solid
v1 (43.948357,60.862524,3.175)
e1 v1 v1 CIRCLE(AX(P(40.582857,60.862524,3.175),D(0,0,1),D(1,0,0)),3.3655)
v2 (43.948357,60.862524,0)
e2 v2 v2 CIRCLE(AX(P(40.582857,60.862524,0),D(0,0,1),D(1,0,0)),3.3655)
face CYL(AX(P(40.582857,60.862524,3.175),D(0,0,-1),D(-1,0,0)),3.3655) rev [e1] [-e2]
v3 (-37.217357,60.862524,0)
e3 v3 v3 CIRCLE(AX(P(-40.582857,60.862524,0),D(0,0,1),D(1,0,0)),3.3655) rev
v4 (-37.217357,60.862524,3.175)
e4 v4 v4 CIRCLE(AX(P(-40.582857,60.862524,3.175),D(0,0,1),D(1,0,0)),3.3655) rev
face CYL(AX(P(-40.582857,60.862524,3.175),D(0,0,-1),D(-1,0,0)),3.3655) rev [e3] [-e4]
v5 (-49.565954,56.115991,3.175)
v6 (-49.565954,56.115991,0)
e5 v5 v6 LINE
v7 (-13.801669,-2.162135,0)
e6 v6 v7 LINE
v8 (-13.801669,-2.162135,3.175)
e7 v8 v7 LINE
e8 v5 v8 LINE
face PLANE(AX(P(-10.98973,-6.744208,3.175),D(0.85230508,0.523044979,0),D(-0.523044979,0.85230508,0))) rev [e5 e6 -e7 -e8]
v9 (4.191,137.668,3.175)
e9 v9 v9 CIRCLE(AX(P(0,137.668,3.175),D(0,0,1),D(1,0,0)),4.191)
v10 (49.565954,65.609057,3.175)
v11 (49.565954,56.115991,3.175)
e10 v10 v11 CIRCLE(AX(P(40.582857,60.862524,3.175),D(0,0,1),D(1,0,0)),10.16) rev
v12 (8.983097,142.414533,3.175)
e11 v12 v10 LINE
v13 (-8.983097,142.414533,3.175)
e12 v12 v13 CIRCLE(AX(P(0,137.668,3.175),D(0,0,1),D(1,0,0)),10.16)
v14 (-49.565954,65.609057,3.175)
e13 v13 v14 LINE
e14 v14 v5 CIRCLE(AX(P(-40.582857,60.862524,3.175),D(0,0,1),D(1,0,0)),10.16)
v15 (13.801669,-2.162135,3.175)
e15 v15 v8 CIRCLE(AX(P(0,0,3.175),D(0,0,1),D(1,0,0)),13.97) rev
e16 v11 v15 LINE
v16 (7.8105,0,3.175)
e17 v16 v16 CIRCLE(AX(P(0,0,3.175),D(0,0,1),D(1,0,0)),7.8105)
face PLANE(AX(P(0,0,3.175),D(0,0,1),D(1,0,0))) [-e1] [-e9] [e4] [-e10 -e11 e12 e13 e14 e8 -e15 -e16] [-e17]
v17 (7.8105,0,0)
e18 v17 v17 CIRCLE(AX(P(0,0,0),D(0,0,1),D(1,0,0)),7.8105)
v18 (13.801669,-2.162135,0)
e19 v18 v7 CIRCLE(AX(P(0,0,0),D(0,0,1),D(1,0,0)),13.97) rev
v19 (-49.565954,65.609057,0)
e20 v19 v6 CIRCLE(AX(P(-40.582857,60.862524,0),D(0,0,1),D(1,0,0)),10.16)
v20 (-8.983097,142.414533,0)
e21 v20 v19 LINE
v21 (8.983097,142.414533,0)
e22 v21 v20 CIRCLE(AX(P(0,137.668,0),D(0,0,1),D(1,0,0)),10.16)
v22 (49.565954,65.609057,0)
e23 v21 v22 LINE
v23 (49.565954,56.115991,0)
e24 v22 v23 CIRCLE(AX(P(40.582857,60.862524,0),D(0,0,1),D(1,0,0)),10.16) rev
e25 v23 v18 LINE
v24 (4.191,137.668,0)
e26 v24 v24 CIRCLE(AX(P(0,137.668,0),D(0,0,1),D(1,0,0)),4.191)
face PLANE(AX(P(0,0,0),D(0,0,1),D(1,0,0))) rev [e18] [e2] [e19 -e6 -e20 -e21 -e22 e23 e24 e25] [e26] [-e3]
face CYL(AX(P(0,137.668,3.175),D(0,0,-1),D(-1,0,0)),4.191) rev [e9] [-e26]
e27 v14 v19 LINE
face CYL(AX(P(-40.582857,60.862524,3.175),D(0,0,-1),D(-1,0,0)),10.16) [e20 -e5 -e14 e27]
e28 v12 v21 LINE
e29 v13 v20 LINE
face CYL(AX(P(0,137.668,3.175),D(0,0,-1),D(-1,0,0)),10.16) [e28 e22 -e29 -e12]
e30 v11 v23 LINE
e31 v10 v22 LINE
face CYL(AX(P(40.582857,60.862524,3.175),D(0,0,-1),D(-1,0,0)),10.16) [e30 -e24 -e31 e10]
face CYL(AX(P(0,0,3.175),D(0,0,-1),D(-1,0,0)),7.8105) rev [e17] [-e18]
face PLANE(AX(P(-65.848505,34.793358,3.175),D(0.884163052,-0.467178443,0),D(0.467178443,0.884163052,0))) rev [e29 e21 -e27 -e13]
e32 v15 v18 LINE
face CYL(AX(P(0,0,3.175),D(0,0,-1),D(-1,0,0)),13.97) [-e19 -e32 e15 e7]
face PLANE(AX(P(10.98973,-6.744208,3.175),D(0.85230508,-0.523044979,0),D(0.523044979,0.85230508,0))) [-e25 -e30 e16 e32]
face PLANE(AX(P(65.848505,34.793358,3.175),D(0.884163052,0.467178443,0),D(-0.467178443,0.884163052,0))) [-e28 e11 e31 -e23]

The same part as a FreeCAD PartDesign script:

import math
import FreeCAD as App
import Part
import Sketcher
from FreeCAD import Vector
Q = App.Units.Quantity

doc = App.newDocument("Part")
params = doc.addObject("Spreadsheet::Sheet", "Params")
for row, (alias, value) in enumerate([
    ("sketch1_radius", "0.4 in"),
    ("sketch1_diameter", "0.33 in"),
    ("sketch1_radius2", "0.55 in"),
    ("sketch1_diameter2", "0.265 in"),
    ("sketch1_diameter3", "0.615 in"),
    ("pad1_length", "0.125 in"),
], start=1):
    params.set(f"A{row}", alias)
    params.set(f"B{row}", "=" + value)
    params.setAlias(f"B{row}", alias)

body = doc.addObject("PartDesign::Body", "Body")

sketch1 = body.newObject("Sketcher::SketchObject", "Sketch")
sketch1.AttachmentSupport = (doc.getObject("XY_Plane"), [""])
sketch1.MapMode = "FlatFace"
sketch1.addGeometry(Part.LineSegment(Vector(-49.6, 56.1, 0), Vector(-13.8, -2.2, 0)), False)
sketch1.addGeometry(Part.ArcOfCircle(Part.Circle(Vector(0, 0, 0), Vector(0, 0, 1), 14), math.radians(-171), math.radians(-126)), False)
sketch1.addGeometry(Part.ArcOfCircle(Part.Circle(Vector(0, 0, 0), Vector(0, 0, 1), 14), math.radians(-126), math.radians(-54)), False)
sketch1.addGeometry(Part.ArcOfCircle(Part.Circle(Vector(0, 0, 0), Vector(0, 0, 1), 14), math.radians(-54), math.radians(-9)), False)
sketch1.addGeometry(Part.LineSegment(Vector(13.8, -2.2, 0), Vector(49.6, 56.1, 0)), False)
sketch1.addGeometry(Part.ArcOfCircle(Part.Circle(Vector(40.6, 60.9, 0), Vector(0, 0, 1), 10.2), math.radians(-28), math.radians(28)), False)
sketch1.addGeometry(Part.LineSegment(Vector(49.6, 65.6, 0), Vector(9, 142.4, 0)), False)
sketch1.addGeometry(Part.ArcOfCircle(Part.Circle(Vector(0, 137.7, 0), Vector(0, 0, 1), 10.2), math.radians(28), math.radians(152)), False)
sketch1.addGeometry(Part.LineSegment(Vector(-9, 142.4, 0), Vector(-49.6, 65.6, 0)), False)
sketch1.addGeometry(Part.ArcOfCircle(Part.Circle(Vector(-40.6, 60.9, 0), Vector(0, 0, 1), 10.2), math.radians(152), math.radians(208)), False)
sketch1.addGeometry(Part.Circle(Vector(-40.6, 60.9, 0), Vector(0, 0, 1), 3.4), False)
sketch1.addGeometry(Part.Circle(Vector(0, 137.7, 0), Vector(0, 0, 1), 4.2), False)
sketch1.addGeometry(Part.Circle(Vector(0, 0, 0), Vector(0, 0, 1), 7.8), False)
sketch1.addGeometry(Part.Circle(Vector(40.6, 60.9, 0), Vector(0, 0, 1), 3.4), False)
sketch1.addConstraint(Sketcher.Constraint("Coincident", 0, 2, 1, 1))
sketch1.addConstraint(Sketcher.Constraint("Tangent", 1, 2, 2, 1))
sketch1.addConstraint(Sketcher.Constraint("Tangent", 2, 2, 3, 1))
sketch1.addConstraint(Sketcher.Constraint("Coincident", 3, 2, 4, 1))
sketch1.addConstraint(Sketcher.Constraint("Coincident", 4, 2, 5, 1))
sketch1.addConstraint(Sketcher.Constraint("Tangent", 5, 2, 6, 1))
sketch1.addConstraint(Sketcher.Constraint("Tangent", 6, 2, 7, 1))
sketch1.addConstraint(Sketcher.Constraint("Tangent", 7, 2, 8, 1))
sketch1.addConstraint(Sketcher.Constraint("Tangent", 8, 2, 9, 1))
sketch1.addConstraint(Sketcher.Constraint("Coincident", 9, 2, 0, 1))
sketch1.addConstraint(Sketcher.Constraint("Coincident", 1, 3, -1, 1))
sketch1.addConstraint(Sketcher.Constraint("Coincident", 3, 3, -1, 1))
sketch1.addConstraint(Sketcher.Constraint("Coincident", 12, 3, -1, 1))
sketch1.addConstraint(Sketcher.Constraint("Coincident", 10, 3, 9, 3))
sketch1.addConstraint(Sketcher.Constraint("Coincident", 11, 3, 7, 3))
sketch1.addConstraint(Sketcher.Constraint("Coincident", 13, 3, 5, 3))
sketch1.addConstraint(Sketcher.Constraint("Equal", 5, 7))
sketch1.addConstraint(Sketcher.Constraint("Equal", 7, 9))
sketch1.addConstraint(Sketcher.Constraint("Equal", 10, 13))
sketch1.addConstraint(Sketcher.Constraint("Symmetric", 5, 3, 9, 3, -2))
sketch1.addConstraint(Sketcher.Constraint("PointOnObject", 7, 3, -2))
sketch1.addConstraint(Sketcher.Constraint("Horizontal", 1, 2, 2, 2))
sketch1.addConstraint(Sketcher.Constraint("Horizontal", 0, 2, 3, 2))
sketch1.addConstraint(Sketcher.Constraint("Horizontal", 4, 2, 9, 2))
sketch1.addConstraint(Sketcher.Constraint("Vertical", 4, 2, 5, 2))
sketch1.addConstraint(Sketcher.Constraint("Radius", 5, Q("0.4 in")))
sketch1.addConstraint(Sketcher.Constraint("Diameter", 11, Q("0.33 in")))
sketch1.addConstraint(Sketcher.Constraint("Radius", 1, Q("0.55 in")))
sketch1.addConstraint(Sketcher.Constraint("Diameter", 10, Q("0.265 in")))
sketch1.addConstraint(Sketcher.Constraint("Diameter", 12, Q("0.615 in")))
sketch1.addConstraint(Sketcher.Constraint("Distance", 6, Q("3.42 in")))
sketch1.addConstraint(Sketcher.Constraint("DistanceY", -1, 1, 7, 3, Q("5.42 in")))
sketch1.addConstraint(Sketcher.Constraint("DistanceX", 0, 2, -1, 1, 13.801669))
sketch1.addConstraint(Sketcher.Constraint("DistanceX", 1, 2, -1, 1, 8.17779))
sketch1.addConstraint(Sketcher.Constraint("DistanceY", -1, 1, 4, 2, 56.115991))
sketch1.setExpression("Constraints[25]", "Params.sketch1_radius")
sketch1.setExpression("Constraints[26]", "Params.sketch1_diameter")
sketch1.setExpression("Constraints[27]", "Params.sketch1_radius2")
sketch1.setExpression("Constraints[28]", "Params.sketch1_diameter2")
sketch1.setExpression("Constraints[29]", "Params.sketch1_diameter3")
pad1 = body.newObject("PartDesign::Pad", "Pad")
pad1.Profile = sketch1
pad1.setExpression("Length", "Params.pad1_length")

doc.recompute()
